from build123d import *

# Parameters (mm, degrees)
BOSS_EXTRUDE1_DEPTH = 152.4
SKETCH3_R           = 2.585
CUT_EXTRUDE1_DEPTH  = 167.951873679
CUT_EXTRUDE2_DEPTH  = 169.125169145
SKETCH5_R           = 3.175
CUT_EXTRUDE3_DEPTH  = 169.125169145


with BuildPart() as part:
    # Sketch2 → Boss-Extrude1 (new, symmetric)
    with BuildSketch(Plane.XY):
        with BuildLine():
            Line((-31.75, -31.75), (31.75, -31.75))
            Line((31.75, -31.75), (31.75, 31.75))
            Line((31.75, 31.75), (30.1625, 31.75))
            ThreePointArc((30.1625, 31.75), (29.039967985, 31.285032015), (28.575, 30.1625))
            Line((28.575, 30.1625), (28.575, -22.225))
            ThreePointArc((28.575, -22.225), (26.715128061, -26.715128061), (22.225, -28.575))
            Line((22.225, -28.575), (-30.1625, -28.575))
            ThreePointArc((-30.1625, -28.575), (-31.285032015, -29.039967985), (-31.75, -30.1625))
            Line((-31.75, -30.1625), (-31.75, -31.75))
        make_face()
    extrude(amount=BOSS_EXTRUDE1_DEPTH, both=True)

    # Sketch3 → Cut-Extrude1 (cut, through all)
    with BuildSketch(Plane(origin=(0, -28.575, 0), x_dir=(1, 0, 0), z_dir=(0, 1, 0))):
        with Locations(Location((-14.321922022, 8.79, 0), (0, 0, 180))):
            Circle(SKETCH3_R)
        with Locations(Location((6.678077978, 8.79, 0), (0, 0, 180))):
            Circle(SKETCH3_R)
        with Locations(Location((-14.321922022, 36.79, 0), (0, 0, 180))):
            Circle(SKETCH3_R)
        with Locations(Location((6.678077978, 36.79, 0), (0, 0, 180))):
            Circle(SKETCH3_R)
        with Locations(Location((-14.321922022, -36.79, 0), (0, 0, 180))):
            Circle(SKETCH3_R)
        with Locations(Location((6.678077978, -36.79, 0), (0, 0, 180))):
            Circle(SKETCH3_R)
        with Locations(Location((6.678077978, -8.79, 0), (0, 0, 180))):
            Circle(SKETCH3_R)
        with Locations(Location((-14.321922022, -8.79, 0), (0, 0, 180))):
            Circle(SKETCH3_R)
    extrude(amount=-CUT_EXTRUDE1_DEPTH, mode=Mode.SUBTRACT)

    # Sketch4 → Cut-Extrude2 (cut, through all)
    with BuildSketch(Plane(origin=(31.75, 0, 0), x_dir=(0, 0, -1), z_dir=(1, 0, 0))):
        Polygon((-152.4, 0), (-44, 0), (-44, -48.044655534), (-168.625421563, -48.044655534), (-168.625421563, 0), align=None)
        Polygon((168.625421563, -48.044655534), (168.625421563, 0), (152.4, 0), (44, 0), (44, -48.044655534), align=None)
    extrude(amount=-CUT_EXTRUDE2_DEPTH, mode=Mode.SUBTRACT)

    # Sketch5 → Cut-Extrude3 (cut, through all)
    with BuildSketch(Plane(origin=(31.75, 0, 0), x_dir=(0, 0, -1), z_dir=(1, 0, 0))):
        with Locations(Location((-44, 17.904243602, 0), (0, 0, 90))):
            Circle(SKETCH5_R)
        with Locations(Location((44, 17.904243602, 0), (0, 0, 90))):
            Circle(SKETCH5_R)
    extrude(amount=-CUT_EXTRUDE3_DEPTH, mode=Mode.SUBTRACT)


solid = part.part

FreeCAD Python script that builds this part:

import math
import FreeCAD as App
import Part
import Sketcher
Q = App.Units.Quantity

doc = App.newDocument("Part")
body = doc.addObject("PartDesign::Body", "Body")

sketch1 = body.newObject("Sketcher::SketchObject", "Sketch")
sketch1.AttachmentSupport = (doc.getObject("XY_Plane"), [""])
sketch1.MapMode = "FlatFace"
sketch1.addGeometry(Part.LineSegment(App.Vector(-31.75, -31.75, 0), App.Vector(31.75, -31.75, 0)), False)
sketch1.addGeometry(Part.LineSegment(App.Vector(31.75, -31.75, 0), App.Vector(31.75, 31.75, 0)), False)
sketch1.addGeometry(Part.LineSegment(App.Vector(31.75, 31.75, 0), App.Vector(30.1625, 31.75, 0)), False)
sketch1.addGeometry(Part.ArcOfCircle(Part.Circle(App.Vector(30.1625, 30.1625, 0), App.Vector(0, 0, 1), 1.5875), math.radians(90), math.radians(180)), False)
sketch1.addGeometry(Part.LineSegment(App.Vector(28.575, 30.1625, 0), App.Vector(28.575, -22.225, 0)), False)
sketch1.addGeometry(Part.ArcOfCircle(Part.Circle(App.Vector(22.225, -22.225, 0), App.Vector(0, 0, 1), 6.35), math.radians(-90), math.radians(0)), False)
sketch1.addGeometry(Part.LineSegment(App.Vector(22.225, -28.575, 0), App.Vector(-30.1625, -28.575, 0)), False)
sketch1.addGeometry(Part.ArcOfCircle(Part.Circle(App.Vector(-30.1625, -30.1625, 0), App.Vector(0, 0, 1), 1.5875), math.radians(90), math.radians(180)), False)
sketch1.addGeometry(Part.LineSegment(App.Vector(-31.75, -30.1625, 0), App.Vector(-31.75, -31.75, 0)), False)
sketch1.addConstraint(Sketcher.Constraint("Coincident", 0, 2, 1, 1))
sketch1.addConstraint(Sketcher.Constraint("Coincident", 1, 2, 2, 1))
sketch1.addConstraint(Sketcher.Constraint("Tangent", 2, 2, 3, 1))
sketch1.addConstraint(Sketcher.Constraint("Tangent", 3, 2, 4, 1))
sketch1.addConstraint(Sketcher.Constraint("Tangent", 4, 2, 5, 2))
sketch1.addConstraint(Sketcher.Constraint("Tangent", 5, 1, 6, 1))
sketch1.addConstraint(Sketcher.Constraint("Tangent", 6, 2, 7, 1))
sketch1.addConstraint(Sketcher.Constraint("Tangent", 7, 2, 8, 1))
sketch1.addConstraint(Sketcher.Constraint("Coincident", 8, 2, 0, 1))
sketch1.addConstraint(Sketcher.Constraint("Horizontal", 0))
sketch1.addConstraint(Sketcher.Constraint("Vertical", 1))
sketch1.addConstraint(Sketcher.Constraint("Horizontal", 2))
sketch1.addConstraint(Sketcher.Constraint("Vertical", 4))
sketch1.addConstraint(Sketcher.Constraint("Horizontal", 6))
sketch1.addConstraint(Sketcher.Constraint("Vertical", 8))
sketch1.addConstraint(Sketcher.Constraint("Equal", 3, 7))
sketch1.addConstraint(Sketcher.Constraint("Symmetric", 3, 3, 7, 3, -1, 1))
sketch1.addConstraint(Sketcher.Constraint("Symmetric", 1, 2, 8, 2, -1, 1))
sketch1.addConstraint(Sketcher.Constraint("Equal", 0, 1))
sketch1.addConstraint(Sketcher.Constraint("Radius", 5, Q("0.25 in")))
sketch1.addConstraint(Sketcher.Constraint("DistanceX", 0, 1, 0, 2, Q("2.5 in")))
sketch1.addConstraint(Sketcher.Constraint("Radius", 3, Q("0.0625 in")))
pad1 = body.newObject("PartDesign::Pad", "Pad")
pad1.Profile = sketch1
pad1.Length = Q("12 in")
pad1.Midplane = True

sketch2 = body.newObject("Sketcher::SketchObject", "Sketch001")
sketch2.AttachmentSupport = (doc.getObject("XZ_Plane"), [""])
sketch2.MapMode = "FlatFace"
sketch2.AttachmentOffset = App.Placement(App.Vector(0, 0, 1.125 * 25.4), App.Rotation())
sketch2.addGeometry(Part.Circle(App.Vector(-14.321922, -8.79, 0), App.Vector(0, 0, 1), 2.585), False)
sketch2.addGeometry(Part.Circle(App.Vector(6.678078, -8.79, 0), App.Vector(0, 0, 1), 2.585), False)
sketch2.addGeometry(Part.Circle(App.Vector(-14.321922, -36.79, 0), App.Vector(0, 0, 1), 2.585), False)
sketch2.addGeometry(Part.Circle(App.Vector(6.678078, -36.79, 0), App.Vector(0, 0, 1), 2.585), False)
sketch2.addGeometry(Part.Circle(App.Vector(-14.321922, 36.79, 0), App.Vector(0, 0, 1), 2.585), False)
sketch2.addGeometry(Part.Circle(App.Vector(6.678078, 36.79, 0), App.Vector(0, 0, 1), 2.585), False)
sketch2.addGeometry(Part.Circle(App.Vector(6.678078, 8.79, 0), App.Vector(0, 0, 1), 2.585), False)
sketch2.addGeometry(Part.Circle(App.Vector(-14.321922, 8.79, 0), App.Vector(0, 0, 1), 2.585), False)
sketch2.addConstraint(Sketcher.Constraint("Equal", 0, 1))
sketch2.addConstraint(Sketcher.Constraint("Equal", 1, 2))
sketch2.addConstraint(Sketcher.Constraint("Equal", 2, 3))
sketch2.addConstraint(Sketcher.Constraint("Equal", 3, 4))
sketch2.addConstraint(Sketcher.Constraint("Equal", 4, 5))
sketch2.addConstraint(Sketcher.Constraint("Equal", 5, 6))
sketch2.addConstraint(Sketcher.Constraint("Equal", 6, 7))
sketch2.addConstraint(Sketcher.Constraint("Symmetric", 2, 3, 4, 3, -1))
sketch2.addConstraint(Sketcher.Constraint("Symmetric", 3, 3, 5, 3, -1))
sketch2.addConstraint(Sketcher.Constraint("Symmetric", 1, 3, 6, 3, -1))
sketch2.addConstraint(Sketcher.Constraint("Symmetric", 0, 3, 7, 3, -1))
sketch2.addConstraint(Sketcher.Constraint("Horizontal", 0, 3, 1, 3))
sketch2.addConstraint(Sketcher.Constraint("Horizontal", 2, 3, 3, 3))
sketch2.addConstraint(Sketcher.Constraint("Vertical", 0, 3, 2, 3))
sketch2.addConstraint(Sketcher.Constraint("Vertical", 1, 3, 3, 3))
sketch2.addConstraint(Sketcher.Constraint("Diameter", 0, Q("5.17 mm")))
sketch2.addConstraint(Sketcher.Constraint("DistanceY", 0, 3, -1, 1, Q("8.79 mm")))
sketch2.addConstraint(Sketcher.Constraint("DistanceY", 2, 3, -1, 1, Q("36.79 mm")))
sketch2.addConstraint(Sketcher.Constraint("DistanceX", 0, 3, 1, 3, Q("21 mm")))
sketch2.addConstraint(Sketcher.Constraint("DistanceX", 0, 3, -1, 1, Q("14.321922 mm")))
pocket1 = body.newObject("PartDesign::Pocket", "Pocket")
pocket1.Profile = sketch2
pocket1.Type = "ThroughAll"
pocket1.Reversed = True

sketch3 = body.newObject("Sketcher::SketchObject", "Sketch002")
sketch3.AttachmentSupport = (doc.getObject("YZ_Plane"), [""])
sketch3.MapMode = "FlatFace"
sketch3.AttachmentOffset = App.Placement(App.Vector(0, 0, 1.25 * 25.4), App.Rotation())
sketch3.addGeometry(Part.LineSegment(App.Vector(0, 44, 0), App.Vector(0, 168.625422, 0)), False)
sketch3.addGeometry(Part.LineSegment(App.Vector(0, 168.625422, 0), App.Vector(-48.044656, 168.625422, 0)), False)
sketch3.addGeometry(Part.LineSegment(App.Vector(-48.044656, 168.625422, 0), App.Vector(-48.044656, 44, 0)), False)
sketch3.addGeometry(Part.LineSegment(App.Vector(-48.044656, 44, 0), App.Vector(0, 44, 0)), False)
sketch3.addGeometry(Part.LineSegment(App.Vector(-48.044656, -168.625422, 0), App.Vector(0, -168.625422, 0)), False)
sketch3.addGeometry(Part.LineSegment(App.Vector(0, -168.625422, 0), App.Vector(0, -44, 0)), False)
sketch3.addGeometry(Part.LineSegment(App.Vector(0, -44, 0), App.Vector(-48.044656, -44, 0)), False)
sketch3.addGeometry(Part.LineSegment(App.Vector(-48.044656, -44, 0), App.Vector(-48.044656, -168.625422, 0)), False)
sketch3.addConstraint(Sketcher.Constraint("Coincident", 0, 2, 1, 1))
sketch3.addConstraint(Sketcher.Constraint("Coincident", 1, 2, 2, 1))
sketch3.addConstraint(Sketcher.Constraint("Coincident", 2, 2, 3, 1))
sketch3.addConstraint(Sketcher.Constraint("Coincident", 3, 2, 0, 1))
sketch3.addConstraint(Sketcher.Constraint("Coincident", 4, 2, 5, 1))
sketch3.addConstraint(Sketcher.Constraint("Coincident", 5, 2, 6, 1))
sketch3.addConstraint(Sketcher.Constraint("Coincident", 6, 2, 7, 1))
sketch3.addConstraint(Sketcher.Constraint("Coincident", 7, 2, 4, 1))
sketch3.addConstraint(Sketcher.Constraint("Vertical", 0))
sketch3.addConstraint(Sketcher.Constraint("Horizontal", 1))
sketch3.addConstraint(Sketcher.Constraint("Vertical", 2))
sketch3.addConstraint(Sketcher.Constraint("Horizontal", 3))
sketch3.addConstraint(Sketcher.Constraint("Horizontal", 4))
sketch3.addConstraint(Sketcher.Constraint("Vertical", 5))
sketch3.addConstraint(Sketcher.Constraint("Horizontal", 6))
sketch3.addConstraint(Sketcher.Constraint("Vertical", 7))
sketch3.addConstraint(Sketcher.Constraint("Symmetric", 0, 2, 4, 2, -1, 1))
sketch3.addConstraint(Sketcher.Constraint("Symmetric", 3, 2, 5, 2, -1))
sketch3.addConstraint(Sketcher.Constraint("Vertical", 2, 2, 6, 2))
sketch3.addConstraint(Sketcher.Constraint("DistanceY", 0, 1, 0, 2, Q("124.625422 mm")))
sketch3.addConstraint(Sketcher.Constraint("DistanceY", -1, 1, 2, 2, Q("44 mm")))
sketch3.addConstraint(Sketcher.Constraint("DistanceX", 1, 2, 1, 1, Q("48.044656 mm")))
pocket2 = body.newObject("PartDesign::Pocket", "Pocket001")
pocket2.Profile = sketch3
pocket2.Type = "ThroughAll"

sketch4 = body.newObject("Sketcher::SketchObject", "Sketch003")
sketch4.AttachmentSupport = (doc.getObject("YZ_Plane"), [""])
sketch4.MapMode = "FlatFace"
sketch4.AttachmentOffset = App.Placement(App.Vector(0, 0, 1.25 * 25.4), App.Rotation())
sketch4.addGeometry(Part.Circle(App.Vector(17.904244, 44, 0), App.Vector(0, 0, 1), 3.175), False)
sketch4.addGeometry(Part.Circle(App.Vector(17.904244, -44, 0), App.Vector(0, 0, 1), 3.175), False)
sketch4.addConstraint(Sketcher.Constraint("Equal", 0, 1))
sketch4.addConstraint(Sketcher.Constraint("Symmetric", 0, 3, 1, 3, -1))
sketch4.addConstraint(Sketcher.Constraint("Diameter", 0, Q("0.25 in")))
sketch4.addConstraint(Sketcher.Constraint("DistanceY", -1, 1, 0, 3, Q("44 mm")))
sketch4.addConstraint(Sketcher.Constraint("DistanceX", -1, 1, 0, 3, Q("17.904244 mm")))
pocket3 = body.newObject("PartDesign::Pocket", "Pocket002")
pocket3.Profile = sketch4
pocket3.Type = "ThroughAll"

doc.recompute()
